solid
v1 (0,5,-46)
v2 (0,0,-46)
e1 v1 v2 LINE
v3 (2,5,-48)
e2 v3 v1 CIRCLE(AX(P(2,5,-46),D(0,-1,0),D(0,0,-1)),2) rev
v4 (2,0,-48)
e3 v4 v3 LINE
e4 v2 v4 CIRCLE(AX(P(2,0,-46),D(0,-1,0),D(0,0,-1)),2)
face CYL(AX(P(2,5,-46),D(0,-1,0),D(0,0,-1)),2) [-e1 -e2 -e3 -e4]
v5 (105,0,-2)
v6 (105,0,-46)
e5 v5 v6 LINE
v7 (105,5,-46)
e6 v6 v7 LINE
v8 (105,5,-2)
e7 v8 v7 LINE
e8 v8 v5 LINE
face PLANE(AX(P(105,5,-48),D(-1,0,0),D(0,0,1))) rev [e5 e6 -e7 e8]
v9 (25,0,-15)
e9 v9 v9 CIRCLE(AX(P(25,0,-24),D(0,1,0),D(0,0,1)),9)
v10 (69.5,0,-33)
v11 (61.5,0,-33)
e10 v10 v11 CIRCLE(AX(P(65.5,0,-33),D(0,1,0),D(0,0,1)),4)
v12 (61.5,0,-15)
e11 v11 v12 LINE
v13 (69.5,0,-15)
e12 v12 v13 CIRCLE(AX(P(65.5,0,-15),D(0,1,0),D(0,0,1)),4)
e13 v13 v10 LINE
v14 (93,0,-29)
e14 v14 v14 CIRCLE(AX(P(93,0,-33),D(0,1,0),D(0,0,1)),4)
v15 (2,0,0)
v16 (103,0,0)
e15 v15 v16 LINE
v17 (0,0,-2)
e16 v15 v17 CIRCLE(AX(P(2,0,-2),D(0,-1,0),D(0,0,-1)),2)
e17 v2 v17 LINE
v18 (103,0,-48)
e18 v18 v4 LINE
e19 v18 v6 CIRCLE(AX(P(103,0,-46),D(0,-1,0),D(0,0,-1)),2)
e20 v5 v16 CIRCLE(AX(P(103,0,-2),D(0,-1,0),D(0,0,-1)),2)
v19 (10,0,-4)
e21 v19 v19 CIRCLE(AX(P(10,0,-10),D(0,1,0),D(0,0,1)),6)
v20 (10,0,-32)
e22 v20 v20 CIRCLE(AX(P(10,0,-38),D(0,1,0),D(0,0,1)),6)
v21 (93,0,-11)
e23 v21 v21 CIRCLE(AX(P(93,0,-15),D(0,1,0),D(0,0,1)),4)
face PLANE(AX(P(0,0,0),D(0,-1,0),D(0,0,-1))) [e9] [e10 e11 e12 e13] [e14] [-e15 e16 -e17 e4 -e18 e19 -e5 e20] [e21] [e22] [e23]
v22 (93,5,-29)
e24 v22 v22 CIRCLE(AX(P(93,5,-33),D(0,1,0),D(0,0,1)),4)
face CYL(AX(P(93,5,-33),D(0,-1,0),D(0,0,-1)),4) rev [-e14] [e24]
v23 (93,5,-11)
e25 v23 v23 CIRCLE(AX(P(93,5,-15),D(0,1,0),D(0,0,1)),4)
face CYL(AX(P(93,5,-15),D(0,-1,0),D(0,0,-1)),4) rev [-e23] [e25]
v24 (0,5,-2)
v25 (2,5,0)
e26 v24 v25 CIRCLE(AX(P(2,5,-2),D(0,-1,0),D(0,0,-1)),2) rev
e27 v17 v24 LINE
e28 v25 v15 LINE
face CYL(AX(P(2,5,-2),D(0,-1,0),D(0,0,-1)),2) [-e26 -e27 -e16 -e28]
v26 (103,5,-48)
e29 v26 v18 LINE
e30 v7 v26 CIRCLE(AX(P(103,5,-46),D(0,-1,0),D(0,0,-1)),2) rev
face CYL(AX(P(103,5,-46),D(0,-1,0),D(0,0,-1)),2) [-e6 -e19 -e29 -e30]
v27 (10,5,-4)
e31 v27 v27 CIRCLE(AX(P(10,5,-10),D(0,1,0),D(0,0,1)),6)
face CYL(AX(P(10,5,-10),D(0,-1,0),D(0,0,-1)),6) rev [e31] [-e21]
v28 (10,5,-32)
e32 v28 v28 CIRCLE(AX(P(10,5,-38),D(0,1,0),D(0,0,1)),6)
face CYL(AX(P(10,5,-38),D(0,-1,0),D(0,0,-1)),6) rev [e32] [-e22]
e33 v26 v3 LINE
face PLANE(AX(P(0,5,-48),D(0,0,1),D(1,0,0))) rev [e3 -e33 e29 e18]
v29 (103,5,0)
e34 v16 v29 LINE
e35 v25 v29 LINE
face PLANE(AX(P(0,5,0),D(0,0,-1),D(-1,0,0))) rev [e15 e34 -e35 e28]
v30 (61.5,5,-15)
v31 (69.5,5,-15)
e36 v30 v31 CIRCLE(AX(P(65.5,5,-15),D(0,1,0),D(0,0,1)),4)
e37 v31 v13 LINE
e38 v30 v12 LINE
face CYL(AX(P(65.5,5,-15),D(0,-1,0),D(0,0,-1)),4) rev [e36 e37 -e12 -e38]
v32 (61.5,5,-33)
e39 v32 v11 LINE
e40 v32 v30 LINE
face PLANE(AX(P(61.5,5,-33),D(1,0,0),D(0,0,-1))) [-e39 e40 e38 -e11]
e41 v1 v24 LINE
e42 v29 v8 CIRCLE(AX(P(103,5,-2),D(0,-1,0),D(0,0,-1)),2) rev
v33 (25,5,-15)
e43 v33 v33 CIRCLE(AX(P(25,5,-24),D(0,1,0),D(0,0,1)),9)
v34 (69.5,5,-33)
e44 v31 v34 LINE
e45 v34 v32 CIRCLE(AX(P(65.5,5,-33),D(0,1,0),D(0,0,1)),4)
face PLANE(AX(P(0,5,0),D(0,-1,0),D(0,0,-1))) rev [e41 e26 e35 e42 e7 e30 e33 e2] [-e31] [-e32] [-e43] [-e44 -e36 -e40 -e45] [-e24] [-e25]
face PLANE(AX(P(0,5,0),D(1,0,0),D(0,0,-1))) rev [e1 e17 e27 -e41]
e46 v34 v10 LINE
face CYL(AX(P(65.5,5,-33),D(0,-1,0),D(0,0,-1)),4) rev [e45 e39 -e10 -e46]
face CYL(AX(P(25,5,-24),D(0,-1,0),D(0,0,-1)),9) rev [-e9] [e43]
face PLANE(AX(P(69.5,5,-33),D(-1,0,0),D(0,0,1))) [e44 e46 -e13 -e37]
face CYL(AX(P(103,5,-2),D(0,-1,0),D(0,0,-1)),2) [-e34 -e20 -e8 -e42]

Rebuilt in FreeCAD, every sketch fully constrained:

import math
import FreeCAD as App
import Part
import Sketcher
from FreeCAD import Vector


def edges_at(feature, points):
    """Names of the edges that pass closest to the given points."""
    edges = feature.Shape.Edges
    near = lambda p: min(range(len(edges)), key=lambda i: edges[i].distToShape(Part.Vertex(*p))[0])
    return sorted({f"Edge{near(p) + 1}" for p in points})


def add_polygon(sketch, points):
    """Adds a closed chain of lines whose ends are joined by coincident constraints."""
    first, n = sketch.GeometryCount, len(points)
    for a, b in zip(points, points[1:] + points[:1]):
        sketch.addGeometry(Part.LineSegment(App.Vector(*a, 0), App.Vector(*b, 0)), False)
    for i in range(n):
        sketch.addConstraint(Sketcher.Constraint("Coincident", first + i, 2, first + (i + 1) % n, 1))

doc = App.newDocument("Part")
body = doc.addObject("PartDesign::Body", "Body")

# Sketch on XZ plane
sketch1 = body.newObject("Sketcher::SketchObject", "Sketch")
sketch1.AttachmentSupport = (doc.getObject("XZ_Plane"), [""])
sketch1.MapMode = "FlatFace"
add_polygon(sketch1, [(0, -48), (0, 0), (105, 0), (105, -48)])  # lines 0-3
sketch1.addGeometry(Part.Circle(Vector(10, -10, 0), Vector(0, 0, 1), 6), False)  # 4
sketch1.addGeometry(Part.Circle(Vector(93, -15, 0), Vector(0, 0, 1), 4), False)  # 5
sketch1.addGeometry(Part.Circle(Vector(25, -24, 0), Vector(0, 0, 1), 9), False)  # 6
sketch1.addGeometry(Part.Circle(Vector(10, -38, 0), Vector(0, 0, 1), 6), False)  # 7
sketch1.addGeometry(Part.LineSegment(Vector(61.5, -15, 0), Vector(61.5, -33, 0)), False)  # 8
sketch1.addGeometry(Part.ArcOfCircle(Part.Circle(Vector(65.5, -33, 0), Vector(0, 0, 1), 4), math.radians(180), math.radians(360)), False)  # 9
sketch1.addGeometry(Part.LineSegment(Vector(69.5, -33, 0), Vector(69.5, -15, 0)), False)  # 10
sketch1.addGeometry(Part.ArcOfCircle(Part.Circle(Vector(65.5, -15, 0), Vector(0, 0, 1), 4), math.radians(0), math.radians(180)), False)  # 11
sketch1.addGeometry(Part.Circle(Vector(93, -33, 0), Vector(0, 0, 1), 4), False)  # 12
sketch1.addConstraint(Sketcher.Constraint("Tangent", 8, 2, 9, 1))
sketch1.addConstraint(Sketcher.Constraint("Tangent", 9, 2, 10, 1))
sketch1.addConstraint(Sketcher.Constraint("Tangent", 10, 2, 11, 1))
sketch1.addConstraint(Sketcher.Constraint("Tangent", 11, 2, 8, 1))
sketch1.addConstraint(Sketcher.Constraint("Vertical", 0))
sketch1.addConstraint(Sketcher.Constraint("Horizontal", 1))
sketch1.addConstraint(Sketcher.Constraint("Vertical", 2))
sketch1.addConstraint(Sketcher.Constraint("Horizontal", 3))
sketch1.addConstraint(Sketcher.Constraint("Vertical", 8))
sketch1.addConstraint(Sketcher.Constraint("Vertical", 10))
sketch1.addConstraint(Sketcher.Constraint("Coincident", 0, 2, -1, 1))
sketch1.addConstraint(Sketcher.Constraint("Equal", 4, 7))
sketch1.addConstraint(Sketcher.Constraint("Equal", 5, 9))
sketch1.addConstraint(Sketcher.Constraint("Equal", 11, 12))
sketch1.addConstraint(Sketcher.Constraint("Horizontal", 5, 3, 11, 3))
sketch1.addConstraint(Sketcher.Constraint("Horizontal", 9, 3, 12, 3))
sketch1.addConstraint(Sketcher.Constraint("Vertical", 4, 3, 7, 3))
sketch1.addConstraint(Sketcher.Constraint("Vertical", 5, 3, 12, 3))
sketch1.addConstraint(Sketcher.Constraint("Diameter", 4, 12.0))
sketch1.addConstraint(Sketcher.Constraint("Diameter", 5, 8.0))
sketch1.addConstraint(Sketcher.Constraint("Diameter", 6, 18.0))
sketch1.addConstraint(Sketcher.Constraint("DistanceX", 1, 1, 1, 2, 105.0))
sketch1.addConstraint(Sketcher.Constraint("DistanceY", 0, 1, 0, 2, 48.0))
sketch1.addConstraint(Sketcher.Constraint("DistanceY", 8, 2, 8, 1, 18.0))
sketch1.addConstraint(Sketcher.Constraint("DistanceX", -1, 1, 4, 3, 10.0))
sketch1.addConstraint(Sketcher.Constraint("DistanceY", 4, 3, -1, 1, 10.0))
sketch1.addConstraint(Sketcher.Constraint("DistanceX", -1, 1, 5, 3, 93.0))
sketch1.addConstraint(Sketcher.Constraint("DistanceY", 5, 3, -1, 1, 15.0))
sketch1.addConstraint(Sketcher.Constraint("DistanceX", -1, 1, 6, 3, 25.0))
sketch1.addConstraint(Sketcher.Constraint("DistanceY", 6, 3, -1, 1, 24.0))
sketch1.addConstraint(Sketcher.Constraint("DistanceY", 7, 3, -1, 1, 38.0))
sketch1.addConstraint(Sketcher.Constraint("DistanceX", -1, 1, 9, 3, 65.5))
pad1 = body.newObject("PartDesign::Pad", "Pad")
pad1.Profile = sketch1
pad1.Length = 5
pad1.Reversed = True
doc.recompute()

fillet = body.newObject("PartDesign::Fillet", "Fillet")
fillet.Base = (pad1, edges_at(pad1, [
    (0, 2.5, -48),
    (105, 2.5, -48),
    (105, 2.5, 0),
    (0, 2.5, 0),
]))
fillet.Radius = 2

doc.recompute()
